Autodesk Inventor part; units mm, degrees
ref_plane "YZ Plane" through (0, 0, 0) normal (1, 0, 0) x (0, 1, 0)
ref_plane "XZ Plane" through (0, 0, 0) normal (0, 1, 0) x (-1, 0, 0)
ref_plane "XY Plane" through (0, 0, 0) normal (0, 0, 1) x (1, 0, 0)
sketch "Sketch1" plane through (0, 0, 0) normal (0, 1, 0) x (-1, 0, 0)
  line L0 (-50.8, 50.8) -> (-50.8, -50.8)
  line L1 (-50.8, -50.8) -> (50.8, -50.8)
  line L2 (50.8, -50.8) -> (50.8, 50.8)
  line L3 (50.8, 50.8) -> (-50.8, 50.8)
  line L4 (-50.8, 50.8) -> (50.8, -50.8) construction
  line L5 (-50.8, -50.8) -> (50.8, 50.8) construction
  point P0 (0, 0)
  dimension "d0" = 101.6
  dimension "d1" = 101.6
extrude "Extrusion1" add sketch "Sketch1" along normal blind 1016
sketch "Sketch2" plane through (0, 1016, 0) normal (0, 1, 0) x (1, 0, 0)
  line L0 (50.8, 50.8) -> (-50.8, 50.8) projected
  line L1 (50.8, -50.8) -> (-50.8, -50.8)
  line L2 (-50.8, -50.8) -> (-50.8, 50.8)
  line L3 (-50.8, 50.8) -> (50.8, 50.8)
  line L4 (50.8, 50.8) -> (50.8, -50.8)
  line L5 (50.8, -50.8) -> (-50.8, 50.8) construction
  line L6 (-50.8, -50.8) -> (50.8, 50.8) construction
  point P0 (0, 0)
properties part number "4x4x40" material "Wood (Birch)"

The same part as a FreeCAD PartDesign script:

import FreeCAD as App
import Part
import Sketcher

V = App.Vector
Q = App.Units.Quantity


def add_polygon(sketch, points):
    """Adds a closed chain of lines whose ends are joined by coincident constraints."""
    first, n = sketch.GeometryCount, len(points)
    for a, b in zip(points, points[1:] + points[:1]):
        sketch.addGeometry(Part.LineSegment(App.Vector(*a, 0), App.Vector(*b, 0)), False)
    for i in range(n):
        sketch.addConstraint(Sketcher.Constraint("Coincident", first + i, 2, first + (i + 1) % n, 1))

doc = App.newDocument("Part")
params = doc.addObject("Spreadsheet::Sheet", "Params")
for row, (alias, value) in enumerate([
    ("sketch1_width", "4 in"),
    ("pad1_length", "40 in"),
], start=1):
    params.set(f"A{row}", alias)
    params.set(f"B{row}", "=" + value)
    params.setAlias(f"B{row}", alias)

body = doc.addObject("PartDesign::Body", "Body")

# Sketch on XZ plane
sketch1 = body.newObject("Sketcher::SketchObject", "Sketch")
sketch1.AttachmentSupport = (doc.getObject("XZ_Plane"), [""])
sketch1.MapMode = "FlatFace"
add_polygon(sketch1, [(-50.8, 50.8), (50.8, 50.8), (50.8, -50.8), (-50.8, -50.8)])  # lines 0-3
sketch1.addConstraint([
    Sketcher.Constraint("Horizontal", 0),
    Sketcher.Constraint("Vertical", 1),
    Sketcher.Constraint("Horizontal", 2),
    Sketcher.Constraint("Vertical", 3),
    Sketcher.Constraint("Symmetric", 0, 2, 2, 2, -1, 1),
    Sketcher.Constraint("Equal", 2, 1),
    Sketcher.Constraint("DistanceX", 0, 1, 0, 2, Q("4 in")),
])
sketch1.setExpression("Constraints[10]", "Params.sketch1_width")
pad1 = body.newObject("PartDesign::Pad", "Pad")
pad1.Profile = sketch1
pad1.setExpression("Length", "Params.pad1_length")
pad1.Reversed = True

doc.recompute()
